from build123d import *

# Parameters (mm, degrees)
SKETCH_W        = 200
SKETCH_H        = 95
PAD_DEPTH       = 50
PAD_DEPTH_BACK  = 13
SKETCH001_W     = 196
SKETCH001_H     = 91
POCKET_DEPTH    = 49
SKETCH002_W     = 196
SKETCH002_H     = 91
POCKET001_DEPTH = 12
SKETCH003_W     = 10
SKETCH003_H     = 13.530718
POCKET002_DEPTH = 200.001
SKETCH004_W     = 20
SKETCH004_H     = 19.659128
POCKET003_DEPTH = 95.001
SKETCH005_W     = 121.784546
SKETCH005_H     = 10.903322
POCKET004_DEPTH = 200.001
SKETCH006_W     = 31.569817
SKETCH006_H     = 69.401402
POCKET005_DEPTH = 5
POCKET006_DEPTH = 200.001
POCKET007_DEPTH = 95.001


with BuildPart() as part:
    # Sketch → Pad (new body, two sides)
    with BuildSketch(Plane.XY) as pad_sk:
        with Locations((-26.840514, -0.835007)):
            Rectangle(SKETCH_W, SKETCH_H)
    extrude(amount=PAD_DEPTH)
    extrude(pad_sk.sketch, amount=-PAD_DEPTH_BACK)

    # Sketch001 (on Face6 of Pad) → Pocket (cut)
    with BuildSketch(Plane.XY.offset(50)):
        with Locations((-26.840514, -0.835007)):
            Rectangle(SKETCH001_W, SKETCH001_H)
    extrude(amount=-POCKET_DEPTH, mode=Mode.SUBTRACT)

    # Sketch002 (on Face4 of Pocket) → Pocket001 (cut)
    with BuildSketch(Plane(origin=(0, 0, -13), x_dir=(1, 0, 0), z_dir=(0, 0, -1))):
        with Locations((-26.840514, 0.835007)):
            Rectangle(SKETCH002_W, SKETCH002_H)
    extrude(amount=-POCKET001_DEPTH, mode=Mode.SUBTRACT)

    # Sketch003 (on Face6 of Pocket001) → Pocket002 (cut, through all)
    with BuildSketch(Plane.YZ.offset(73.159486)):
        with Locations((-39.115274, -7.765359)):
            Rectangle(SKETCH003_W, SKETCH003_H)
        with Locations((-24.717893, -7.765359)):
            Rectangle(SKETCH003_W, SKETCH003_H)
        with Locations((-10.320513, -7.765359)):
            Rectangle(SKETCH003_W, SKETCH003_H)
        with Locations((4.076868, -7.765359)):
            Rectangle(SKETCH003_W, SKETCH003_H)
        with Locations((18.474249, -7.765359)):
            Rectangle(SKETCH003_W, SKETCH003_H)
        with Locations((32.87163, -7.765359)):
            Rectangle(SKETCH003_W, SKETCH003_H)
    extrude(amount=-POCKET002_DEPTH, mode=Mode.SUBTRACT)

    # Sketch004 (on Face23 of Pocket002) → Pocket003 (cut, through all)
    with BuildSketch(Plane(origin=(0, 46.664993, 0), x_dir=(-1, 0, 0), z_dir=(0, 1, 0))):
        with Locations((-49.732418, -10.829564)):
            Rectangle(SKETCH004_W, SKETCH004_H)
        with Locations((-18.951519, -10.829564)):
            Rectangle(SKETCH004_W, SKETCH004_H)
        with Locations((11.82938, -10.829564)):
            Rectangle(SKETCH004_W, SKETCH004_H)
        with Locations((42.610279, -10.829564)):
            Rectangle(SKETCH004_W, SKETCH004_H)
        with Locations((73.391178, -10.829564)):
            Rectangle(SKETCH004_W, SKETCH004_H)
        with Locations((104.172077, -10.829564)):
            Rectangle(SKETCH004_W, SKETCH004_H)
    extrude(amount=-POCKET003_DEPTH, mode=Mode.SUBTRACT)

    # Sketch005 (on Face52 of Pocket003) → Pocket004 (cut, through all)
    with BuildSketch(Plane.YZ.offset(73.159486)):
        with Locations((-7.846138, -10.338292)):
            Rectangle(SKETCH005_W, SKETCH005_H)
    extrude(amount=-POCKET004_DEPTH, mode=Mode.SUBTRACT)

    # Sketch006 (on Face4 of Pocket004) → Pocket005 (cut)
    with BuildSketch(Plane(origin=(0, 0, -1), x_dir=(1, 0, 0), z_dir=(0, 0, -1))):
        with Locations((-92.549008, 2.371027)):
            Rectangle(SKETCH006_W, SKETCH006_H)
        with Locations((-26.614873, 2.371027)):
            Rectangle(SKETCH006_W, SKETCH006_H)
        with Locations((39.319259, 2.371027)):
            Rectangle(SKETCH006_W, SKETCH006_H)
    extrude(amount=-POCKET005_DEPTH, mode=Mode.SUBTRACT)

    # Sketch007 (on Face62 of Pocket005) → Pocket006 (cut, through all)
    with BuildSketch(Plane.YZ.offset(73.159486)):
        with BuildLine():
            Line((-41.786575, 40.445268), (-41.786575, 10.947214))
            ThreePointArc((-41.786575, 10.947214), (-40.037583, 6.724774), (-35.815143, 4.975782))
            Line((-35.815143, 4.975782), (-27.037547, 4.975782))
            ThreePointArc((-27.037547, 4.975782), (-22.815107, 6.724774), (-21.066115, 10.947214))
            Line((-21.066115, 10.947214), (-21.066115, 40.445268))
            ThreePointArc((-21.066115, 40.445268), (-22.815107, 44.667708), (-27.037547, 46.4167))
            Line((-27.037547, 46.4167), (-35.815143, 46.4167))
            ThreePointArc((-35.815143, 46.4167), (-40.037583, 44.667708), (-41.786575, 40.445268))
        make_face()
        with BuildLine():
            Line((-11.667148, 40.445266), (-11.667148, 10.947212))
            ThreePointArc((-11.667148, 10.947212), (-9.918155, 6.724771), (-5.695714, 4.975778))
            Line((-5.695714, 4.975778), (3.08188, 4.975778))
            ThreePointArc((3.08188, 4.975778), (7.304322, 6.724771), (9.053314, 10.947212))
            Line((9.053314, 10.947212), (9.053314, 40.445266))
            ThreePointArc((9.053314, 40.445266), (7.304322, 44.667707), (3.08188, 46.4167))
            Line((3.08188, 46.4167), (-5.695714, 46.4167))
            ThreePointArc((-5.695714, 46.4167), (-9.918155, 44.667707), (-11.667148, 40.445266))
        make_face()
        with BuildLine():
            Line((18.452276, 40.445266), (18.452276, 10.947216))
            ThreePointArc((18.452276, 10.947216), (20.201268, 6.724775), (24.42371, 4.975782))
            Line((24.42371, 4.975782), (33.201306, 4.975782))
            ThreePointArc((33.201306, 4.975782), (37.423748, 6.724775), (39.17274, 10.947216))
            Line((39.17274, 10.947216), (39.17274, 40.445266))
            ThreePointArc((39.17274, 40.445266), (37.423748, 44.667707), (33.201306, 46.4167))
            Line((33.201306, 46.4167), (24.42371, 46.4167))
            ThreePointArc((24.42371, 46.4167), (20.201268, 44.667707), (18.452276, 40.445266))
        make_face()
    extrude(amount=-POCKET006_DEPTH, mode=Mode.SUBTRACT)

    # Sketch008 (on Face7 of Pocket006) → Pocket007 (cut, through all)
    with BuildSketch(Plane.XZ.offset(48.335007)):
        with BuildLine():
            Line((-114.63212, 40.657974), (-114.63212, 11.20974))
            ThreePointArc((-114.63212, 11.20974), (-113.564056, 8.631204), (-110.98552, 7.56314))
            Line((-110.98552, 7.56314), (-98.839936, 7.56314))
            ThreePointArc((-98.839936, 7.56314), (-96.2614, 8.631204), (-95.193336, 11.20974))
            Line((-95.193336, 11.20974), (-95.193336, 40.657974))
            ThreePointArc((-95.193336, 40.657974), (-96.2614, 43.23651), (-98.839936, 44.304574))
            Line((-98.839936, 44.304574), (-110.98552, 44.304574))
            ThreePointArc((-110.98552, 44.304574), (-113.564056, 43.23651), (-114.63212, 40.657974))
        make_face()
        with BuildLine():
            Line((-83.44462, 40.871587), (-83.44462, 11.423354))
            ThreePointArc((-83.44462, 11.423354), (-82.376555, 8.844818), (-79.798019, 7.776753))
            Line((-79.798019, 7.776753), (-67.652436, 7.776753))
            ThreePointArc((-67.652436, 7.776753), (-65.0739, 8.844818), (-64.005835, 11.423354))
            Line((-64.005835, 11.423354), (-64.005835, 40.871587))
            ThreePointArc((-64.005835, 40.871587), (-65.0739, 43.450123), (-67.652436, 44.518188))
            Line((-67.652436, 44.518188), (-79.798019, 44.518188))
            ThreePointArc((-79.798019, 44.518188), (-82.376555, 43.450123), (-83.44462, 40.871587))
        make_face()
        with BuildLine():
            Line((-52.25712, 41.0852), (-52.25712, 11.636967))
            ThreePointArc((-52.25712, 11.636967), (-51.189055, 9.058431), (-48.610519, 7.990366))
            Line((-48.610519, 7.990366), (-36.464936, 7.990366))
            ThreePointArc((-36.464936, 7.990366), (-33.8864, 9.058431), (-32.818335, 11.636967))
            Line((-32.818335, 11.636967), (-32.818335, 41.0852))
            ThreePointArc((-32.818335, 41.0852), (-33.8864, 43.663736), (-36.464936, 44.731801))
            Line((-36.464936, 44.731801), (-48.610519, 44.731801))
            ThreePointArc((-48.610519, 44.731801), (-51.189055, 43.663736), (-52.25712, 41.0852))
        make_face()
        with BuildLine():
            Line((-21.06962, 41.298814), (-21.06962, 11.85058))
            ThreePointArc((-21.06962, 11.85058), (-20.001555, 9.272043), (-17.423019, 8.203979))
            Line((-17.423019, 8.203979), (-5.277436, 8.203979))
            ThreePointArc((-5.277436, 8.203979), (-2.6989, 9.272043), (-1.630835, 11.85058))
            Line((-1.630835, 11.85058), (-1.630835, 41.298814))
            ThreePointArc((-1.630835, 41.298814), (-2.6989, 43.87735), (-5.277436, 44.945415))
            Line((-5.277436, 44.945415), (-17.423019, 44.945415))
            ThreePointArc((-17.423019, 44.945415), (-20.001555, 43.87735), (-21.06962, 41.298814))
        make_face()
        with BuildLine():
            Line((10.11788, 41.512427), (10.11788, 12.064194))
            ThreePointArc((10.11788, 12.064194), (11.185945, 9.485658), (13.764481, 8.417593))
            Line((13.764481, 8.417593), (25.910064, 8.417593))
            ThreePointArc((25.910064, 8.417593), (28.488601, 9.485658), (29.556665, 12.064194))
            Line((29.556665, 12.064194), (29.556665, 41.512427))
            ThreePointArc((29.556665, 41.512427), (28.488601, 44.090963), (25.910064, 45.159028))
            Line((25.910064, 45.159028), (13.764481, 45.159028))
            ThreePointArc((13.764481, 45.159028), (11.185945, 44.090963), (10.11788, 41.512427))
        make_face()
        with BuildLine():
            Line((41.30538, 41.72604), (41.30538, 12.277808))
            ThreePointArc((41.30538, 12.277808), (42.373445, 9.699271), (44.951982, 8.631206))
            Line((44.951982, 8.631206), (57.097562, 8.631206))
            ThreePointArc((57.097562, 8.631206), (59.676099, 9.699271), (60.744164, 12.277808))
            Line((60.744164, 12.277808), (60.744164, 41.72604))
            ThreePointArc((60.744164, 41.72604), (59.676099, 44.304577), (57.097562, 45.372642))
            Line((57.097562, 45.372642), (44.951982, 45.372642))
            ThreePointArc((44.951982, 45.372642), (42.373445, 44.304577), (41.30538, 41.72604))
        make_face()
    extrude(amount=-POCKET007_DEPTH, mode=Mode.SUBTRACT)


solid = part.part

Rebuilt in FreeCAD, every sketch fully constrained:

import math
import FreeCAD as App
import Part
import Sketcher

V = App.Vector
Q = App.Units.Quantity


def add_polygon(sketch, points):
    """Adds a closed chain of lines whose ends are joined by coincident constraints."""
    first, n = sketch.GeometryCount, len(points)
    for a, b in zip(points, points[1:] + points[:1]):
        sketch.addGeometry(Part.LineSegment(App.Vector(*a, 0), App.Vector(*b, 0)), False)
    for i in range(n):
        sketch.addConstraint(Sketcher.Constraint("Coincident", first + i, 2, first + (i + 1) % n, 1))

doc = App.newDocument("Part")
body = doc.addObject("PartDesign::Body", "Body")

# Sketch on XY plane
sketch1 = body.newObject("Sketcher::SketchObject", "Sketch")
sketch1.AttachmentSupport = (doc.getObject("XY_Plane"), [""])
sketch1.MapMode = "FlatFace"
add_polygon(sketch1, [(-126.840514, 46.664993), (-126.840514, -48.335007), (73.159486, -48.335007), (73.159486, 46.664993)])  # lines 0-3
sketch1.addConstraint(Sketcher.Constraint("Vertical", 0))
sketch1.addConstraint(Sketcher.Constraint("Horizontal", 1))
sketch1.addConstraint(Sketcher.Constraint("Vertical", 2))
sketch1.addConstraint(Sketcher.Constraint("Horizontal", 3))
sketch1.addConstraint(Sketcher.Constraint("DistanceX", 1, 1, 1, 2, Q("200 mm")))
sketch1.addConstraint(Sketcher.Constraint("DistanceY", 0, 2, 0, 1, Q("95 mm")))
sketch1.addConstraint(Sketcher.Constraint("DistanceX", 0, 2, -1, 1, Q("126.840514 mm")))
sketch1.addConstraint(Sketcher.Constraint("DistanceY", 0, 2, -1, 1, Q("48.335007 mm")))
pad1 = body.newObject("PartDesign::Pad", "Pad")
pad1.Profile = sketch1
pad1.Type = "TwoLengths"
pad1.Length = 50
pad1.Length2 = 13

# Sketch on XY plane
sketch2 = body.newObject("Sketcher::SketchObject", "Sketch001")
sketch2.AttachmentSupport = (doc.getObject("XY_Plane"), [""])
sketch2.MapMode = "FlatFace"
sketch2.AttachmentOffset = App.Placement(V(0, 0, 50), App.Rotation())
add_polygon(sketch2, [(-124.840514, 44.664993), (-124.840514, -46.335007), (71.159486, -46.335007), (71.159486, 44.664993)])  # lines 0-3
sketch2.addConstraint(Sketcher.Constraint("Vertical", 0))
sketch2.addConstraint(Sketcher.Constraint("Horizontal", 1))
sketch2.addConstraint(Sketcher.Constraint("Vertical", 2))
sketch2.addConstraint(Sketcher.Constraint("Horizontal", 3))
sketch2.addConstraint(Sketcher.Constraint("DistanceX", 1, 1, 1, 2, Q("196 mm")))
sketch2.addConstraint(Sketcher.Constraint("DistanceY", 0, 2, 0, 1, Q("91 mm")))
sketch2.addConstraint(Sketcher.Constraint("DistanceX", 0, 2, -1, 1, Q("124.840514 mm")))
sketch2.addConstraint(Sketcher.Constraint("DistanceY", 0, 2, -1, 1, Q("46.335007 mm")))
pocket1 = body.newObject("PartDesign::Pocket", "Pocket")
pocket1.Profile = sketch2
pocket1.Length = 49

# Sketch on XY plane
sketch3 = body.newObject("Sketcher::SketchObject", "Sketch002")
sketch3.AttachmentSupport = (doc.getObject("XY_Plane"), [""])
sketch3.MapMode = "FlatFace"
sketch3.AttachmentOffset = App.Placement(V(0, 0, -13), App.Rotation())
add_polygon(sketch3, [(-124.840514, -46.335007), (-124.840514, 44.664993), (71.159486, 44.664993), (71.159486, -46.335007)])  # lines 0-3
sketch3.addConstraint(Sketcher.Constraint("Vertical", 0))
sketch3.addConstraint(Sketcher.Constraint("Horizontal", 1))
sketch3.addConstraint(Sketcher.Constraint("Vertical", 2))
sketch3.addConstraint(Sketcher.Constraint("Horizontal", 3))
sketch3.addConstraint(Sketcher.Constraint("DistanceX", 1, 1, 1, 2, Q("196 mm")))
sketch3.addConstraint(Sketcher.Constraint("DistanceY", 0, 1, 0, 2, Q("91 mm")))
sketch3.addConstraint(Sketcher.Constraint("DistanceX", 0, 2, -1, 1, Q("124.840514 mm")))
sketch3.addConstraint(Sketcher.Constraint("DistanceY", -1, 1, 0, 2, Q("44.664993 mm")))
pocket2 = body.newObject("PartDesign::Pocket", "Pocket001")
pocket2.Profile = sketch3
pocket2.Length = 12
pocket2.Reversed = True

# Sketch on YZ plane
sketch4 = body.newObject("Sketcher::SketchObject", "Sketch003")
sketch4.AttachmentSupport = (doc.getObject("YZ_Plane"), [""])
sketch4.MapMode = "FlatFace"
sketch4.AttachmentOffset = App.Placement(V(0, 0, 73.159486), App.Rotation())
add_polygon(sketch4, [(-44.115274, -1), (-44.115274, -14.530718), (-34.115274, -14.530718), (-34.115274, -1)])  # lines 0-3
add_polygon(sketch4, [(-29.717893, -1), (-29.717893, -14.530718), (-19.717893, -14.530718), (-19.717893, -1)])  # lines 4-7
add_polygon(sketch4, [(-15.320513, -1), (-15.320513, -14.530718), (-5.320513, -14.530718), (-5.320513, -1)])  # lines 8-11
add_polygon(sketch4, [(-0.923132, -1), (-0.923132, -14.530718), (9.076868, -14.530718), (9.076868, -1)])  # lines 12-15
add_polygon(sketch4, [(13.474249, -1), (13.474249, -14.530718), (23.474249, -14.530718), (23.474249, -1)])  # lines 16-19
add_polygon(sketch4, [(27.87163, -1), (27.87163, -14.530718), (37.87163, -14.530718), (37.87163, -1)])  # lines 20-23
sketch4.addConstraint(Sketcher.Constraint("Vertical", 0))
sketch4.addConstraint(Sketcher.Constraint("Horizontal", 1))
sketch4.addConstraint(Sketcher.Constraint("Vertical", 2))
sketch4.addConstraint(Sketcher.Constraint("Horizontal", 3))
sketch4.addConstraint(Sketcher.Constraint("Vertical", 4))
sketch4.addConstraint(Sketcher.Constraint("Horizontal", 5))
sketch4.addConstraint(Sketcher.Constraint("Vertical", 6))
sketch4.addConstraint(Sketcher.Constraint("Horizontal", 7))
sketch4.addConstraint(Sketcher.Constraint("Vertical", 8))
sketch4.addConstraint(Sketcher.Constraint("Horizontal", 9))
sketch4.addConstraint(Sketcher.Constraint("Vertical", 10))
sketch4.addConstraint(Sketcher.Constraint("Horizontal", 11))
sketch4.addConstraint(Sketcher.Constraint("Vertical", 12))
sketch4.addConstraint(Sketcher.Constraint("Horizontal", 13))
sketch4.addConstraint(Sketcher.Constraint("Vertical", 14))
sketch4.addConstraint(Sketcher.Constraint("Horizontal", 15))
sketch4.addConstraint(Sketcher.Constraint("Vertical", 16))
sketch4.addConstraint(Sketcher.Constraint("Horizontal", 17))
sketch4.addConstraint(Sketcher.Constraint("Vertical", 18))
sketch4.addConstraint(Sketcher.Constraint("Horizontal", 19))
sketch4.addConstraint(Sketcher.Constraint("Vertical", 20))
sketch4.addConstraint(Sketcher.Constraint("Horizontal", 21))
sketch4.addConstraint(Sketcher.Constraint("Vertical", 22))
sketch4.addConstraint(Sketcher.Constraint("Horizontal", 23))
sketch4.addConstraint(Sketcher.Constraint("Horizontal", 1, 2, 4, 2))
sketch4.addConstraint(Sketcher.Constraint("Horizontal", 3, 2, 6, 2))
sketch4.addConstraint(Sketcher.Constraint("Horizontal", 5, 2, 8, 2))
sketch4.addConstraint(Sketcher.Constraint("Horizontal", 7, 2, 10, 2))
sketch4.addConstraint(Sketcher.Constraint("Horizontal", 9, 2, 12, 2))
sketch4.addConstraint(Sketcher.Constraint("Horizontal", 11, 2, 14, 2))
sketch4.addConstraint(Sketcher.Constraint("Horizontal", 13, 2, 16, 2))
sketch4.addConstraint(Sketcher.Constraint("Horizontal", 15, 2, 18, 2))
sketch4.addConstraint(Sketcher.Constraint("Horizontal", 17, 2, 20, 2))
sketch4.addConstraint(Sketcher.Constraint("Horizontal", 19, 2, 22, 2))
sketch4.addConstraint(Sketcher.Constraint("Equal", 3, 5))
sketch4.addConstraint(Sketcher.Constraint("Equal", 7, 9))
sketch4.addConstraint(Sketcher.Constraint("Equal", 11, 13))
sketch4.addConstraint(Sketcher.Constraint("Equal", 15, 17))
sketch4.addConstraint(Sketcher.Constraint("Equal", 19, 21))
sketch4.addConstraint(Sketcher.Constraint("DistanceX", 1, 1, 1, 2, Q("10 mm")))
sketch4.addConstraint(Sketcher.Constraint("DistanceY", 2, 2, -1, 1, Q("1 mm")))
sketch4.addConstraint(Sketcher.Constraint("DistanceY", 0, 2, 0, 1, Q("13.530718 mm")))
sketch4.addConstraint(Sketcher.Constraint("DistanceX", 12, 2, -1, 1, Q("0.923132 mm")))
sketch4.addConstraint(Sketcher.Constraint("DistanceX", -1, 1, 16, 2, Q("13.474249 mm")))
sketch4.addConstraint(Sketcher.Constraint("DistanceX", -1, 1, 20, 2, Q("27.87163 mm")))
sketch4.addConstraint(Sketcher.Constraint("DistanceX", 1, 2, 4, 2, Q("4.397381 mm")))
sketch4.addConstraint(Sketcher.Constraint("DistanceX", 5, 2, 8, 2, Q("4.39738 mm")))
sketch4.addConstraint(Sketcher.Constraint("DistanceX", 9, 2, 12, 2, Q("4.397381 mm")))
pocket3 = body.newObject("PartDesign::Pocket", "Pocket002")
pocket3.Profile = sketch4
pocket3.Type = "ThroughAll"

# Sketch on XZ plane
sketch5 = body.newObject("Sketcher::SketchObject", "Sketch004")
sketch5.AttachmentSupport = (doc.getObject("XZ_Plane"), [""])
sketch5.MapMode = "FlatFace"
sketch5.AttachmentOffset = App.Placement(V(0, 0, -46.664993), App.Rotation())
add_polygon(sketch5, [(59.732418, -1), (59.732418, -20.659128), (39.732418, -20.659128), (39.732418, -1)])  # lines 0-3
add_polygon(sketch5, [(28.951519, -1), (28.951519, -20.659128), (8.951519, -20.659128), (8.951519, -1)])  # lines 4-7
add_polygon(sketch5, [(-1.82938, -1), (-1.82938, -20.659128), (-21.82938, -20.659128), (-21.82938, -1)])  # lines 8-11
add_polygon(sketch5, [(-32.610279, -1), (-32.610279, -20.659128), (-52.610279, -20.659128), (-52.610279, -1)])  # lines 12-15
add_polygon(sketch5, [(-63.391178, -1), (-63.391178, -20.659128), (-83.391178, -20.659128), (-83.391178, -1)])  # lines 16-19
add_polygon(sketch5, [(-94.172077, -1), (-94.172077, -20.659128), (-114.172077, -20.659128), (-114.172077, -1)])  # lines 20-23
sketch5.addConstraint(Sketcher.Constraint("Vertical", 0))
sketch5.addConstraint(Sketcher.Constraint("Horizontal", 1))
sketch5.addConstraint(Sketcher.Constraint("Vertical", 2))
sketch5.addConstraint(Sketcher.Constraint("Horizontal", 3))
sketch5.addConstraint(Sketcher.Constraint("Vertical", 4))
sketch5.addConstraint(Sketcher.Constraint("Horizontal", 5))
sketch5.addConstraint(Sketcher.Constraint("Vertical", 6))
sketch5.addConstraint(Sketcher.Constraint("Horizontal", 7))
sketch5.addConstraint(Sketcher.Constraint("Vertical", 8))
sketch5.addConstraint(Sketcher.Constraint("Horizontal", 9))
sketch5.addConstraint(Sketcher.Constraint("Vertical", 10))
sketch5.addConstraint(Sketcher.Constraint("Horizontal", 11))
sketch5.addConstraint(Sketcher.Constraint("Vertical", 12))
sketch5.addConstraint(Sketcher.Constraint("Horizontal", 13))
sketch5.addConstraint(Sketcher.Constraint("Vertical", 14))
sketch5.addConstraint(Sketcher.Constraint("Horizontal", 15))
sketch5.addConstraint(Sketcher.Constraint("Vertical", 16))
sketch5.addConstraint(Sketcher.Constraint("Horizontal", 17))
sketch5.addConstraint(Sketcher.Constraint("Vertical", 18))
sketch5.addConstraint(Sketcher.Constraint("Horizontal", 19))
sketch5.addConstraint(Sketcher.Constraint("Vertical", 20))
sketch5.addConstraint(Sketcher.Constraint("Horizontal", 21))
sketch5.addConstraint(Sketcher.Constraint("Vertical", 22))
sketch5.addConstraint(Sketcher.Constraint("Horizontal", 23))
sketch5.addConstraint(Sketcher.Constraint("Horizontal", 1, 2, 4, 2))
sketch5.addConstraint(Sketcher.Constraint("Horizontal", 3, 2, 6, 2))
sketch5.addConstraint(Sketcher.Constraint("Horizontal", 5, 2, 8, 2))
sketch5.addConstraint(Sketcher.Constraint("Horizontal", 7, 2, 10, 2))
sketch5.addConstraint(Sketcher.Constraint("Horizontal", 9, 2, 12, 2))
sketch5.addConstraint(Sketcher.Constraint("Horizontal", 11, 2, 14, 2))
sketch5.addConstraint(Sketcher.Constraint("Horizontal", 13, 2, 16, 2))
sketch5.addConstraint(Sketcher.Constraint("Horizontal", 15, 2, 18, 2))
sketch5.addConstraint(Sketcher.Constraint("Horizontal", 17, 2, 20, 2))
sketch5.addConstraint(Sketcher.Constraint("Horizontal", 19, 2, 22, 2))
sketch5.addConstraint(Sketcher.Constraint("Equal", 3, 5))
sketch5.addConstraint(Sketcher.Constraint("Equal", 7, 9))
sketch5.addConstraint(Sketcher.Constraint("Equal", 11, 13))
sketch5.addConstraint(Sketcher.Constraint("Equal", 15, 17))
sketch5.addConstraint(Sketcher.Constraint("Equal", 19, 21))
sketch5.addConstraint(Sketcher.Constraint("DistanceX", 1, 2, 1, 1, Q("20 mm")))
sketch5.addConstraint(Sketcher.Constraint("DistanceY", 2, 2, -1, 1, Q("1 mm")))
sketch5.addConstraint(Sketcher.Constraint("DistanceX", 4, 2, 1, 2, Q("10.780899 mm")))
sketch5.addConstraint(Sketcher.Constraint("DistanceX", 8, 2, 5, 2, Q("10.780899 mm")))
sketch5.addConstraint(Sketcher.Constraint("DistanceX", 12, 2, 9, 2, Q("10.780899 mm")))
sketch5.addConstraint(Sketcher.Constraint("DistanceX", 16, 2, 13, 2, Q("10.780899 mm")))
sketch5.addConstraint(Sketcher.Constraint("DistanceX", 20, 2, 17, 2, Q("10.780899 mm")))
sketch5.addConstraint(Sketcher.Constraint("DistanceY", 0, 2, 0, 1, Q("19.659128 mm")))
sketch5.addConstraint(Sketcher.Constraint("DistanceX", -1, 1, 0, 2, Q("59.732418 mm")))
pocket4 = body.newObject("PartDesign::Pocket", "Pocket003")
pocket4.Profile = sketch5
pocket4.Type = "ThroughAll"
pocket4.Reversed = True

# Sketch on YZ plane
sketch6 = body.newObject("Sketcher::SketchObject", "Sketch005")
sketch6.AttachmentSupport = (doc.getObject("YZ_Plane"), [""])
sketch6.MapMode = "FlatFace"
sketch6.AttachmentOffset = App.Placement(V(0, 0, 73.159486), App.Rotation())
add_polygon(sketch6, [(-68.738411, -4.886631), (-68.738411, -15.789953), (53.046135, -15.789953), (53.046135, -4.886631)])  # lines 0-3
sketch6.addConstraint(Sketcher.Constraint("Vertical", 0))
sketch6.addConstraint(Sketcher.Constraint("Horizontal", 1))
sketch6.addConstraint(Sketcher.Constraint("Vertical", 2))
sketch6.addConstraint(Sketcher.Constraint("Horizontal", 3))
sketch6.addConstraint(Sketcher.Constraint("DistanceY", 0, 2, 0, 1, Q("10.903322 mm")))
sketch6.addConstraint(Sketcher.Constraint("DistanceX", 1, 1, 1, 2, Q("121.784546 mm")))
sketch6.addConstraint(Sketcher.Constraint("DistanceX", 0, 2, -1, 1, Q("68.738411 mm")))
sketch6.addConstraint(Sketcher.Constraint("DistanceY", 2, 2, -1, 1, Q("4.886631 mm")))
pocket5 = body.newObject("PartDesign::Pocket", "Pocket004")
pocket5.Profile = sketch6
pocket5.Type = "ThroughAll"

# Sketch on XY plane
sketch7 = body.newObject("Sketcher::SketchObject", "Sketch006")
sketch7.AttachmentSupport = (doc.getObject("XY_Plane"), [""])
sketch7.MapMode = "FlatFace"
sketch7.AttachmentOffset = App.Placement(V(0, 0, -1), App.Rotation())
add_polygon(sketch7, [(-108.333917, -37.071728), (-108.333917, 32.329674), (-76.7641, 32.329674), (-76.7641, -37.071728)])  # lines 0-3
add_polygon(sketch7, [(-42.399782, -37.071728), (-42.399782, 32.329674), (-10.829965, 32.329674), (-10.829965, -37.071728)])  # lines 4-7
add_polygon(sketch7, [(23.53435, -37.071728), (23.53435, 32.329674), (55.104168, 32.329674), (55.104168, -37.071728)])  # lines 8-11
sketch7.addConstraint(Sketcher.Constraint("Vertical", 0))
sketch7.addConstraint(Sketcher.Constraint("Horizontal", 1))
sketch7.addConstraint(Sketcher.Constraint("Vertical", 2))
sketch7.addConstraint(Sketcher.Constraint("Horizontal", 3))
sketch7.addConstraint(Sketcher.Constraint("Vertical", 4))
sketch7.addConstraint(Sketcher.Constraint("Horizontal", 5))
sketch7.addConstraint(Sketcher.Constraint("Vertical", 6))
sketch7.addConstraint(Sketcher.Constraint("Horizontal", 7))
sketch7.addConstraint(Sketcher.Constraint("Vertical", 8))
sketch7.addConstraint(Sketcher.Constraint("Horizontal", 9))
sketch7.addConstraint(Sketcher.Constraint("Vertical", 10))
sketch7.addConstraint(Sketcher.Constraint("Horizontal", 11))
sketch7.addConstraint(Sketcher.Constraint("Horizontal", 1, 2, 4, 2))
sketch7.addConstraint(Sketcher.Constraint("Horizontal", 3, 2, 6, 2))
sketch7.addConstraint(Sketcher.Constraint("Horizontal", 5, 2, 8, 2))
sketch7.addConstraint(Sketcher.Constraint("Horizontal", 7, 2, 10, 2))
sketch7.addConstraint(Sketcher.Constraint("Equal", 3, 5))
sketch7.addConstraint(Sketcher.Constraint("Equal", 7, 9))
sketch7.addConstraint(Sketcher.Constraint("DistanceY", 0, 1, 0, 2, Q("69.401402 mm")))
sketch7.addConstraint(Sketcher.Constraint("DistanceX", 1, 2, -1, 1, Q("76.7641 mm")))
sketch7.addConstraint(Sketcher.Constraint("DistanceX", 1, 1, 1, 2, Q("31.569817 mm")))
sketch7.addConstraint(Sketcher.Constraint("DistanceX", 4, 2, -1, 1, Q("42.399782 mm")))
sketch7.addConstraint(Sketcher.Constraint("DistanceX", -1, 1, 8, 2, Q("23.53435 mm")))
sketch7.addConstraint(Sketcher.Constraint("DistanceY", -1, 1, 0, 2, Q("32.329674 mm")))
pocket6 = body.newObject("PartDesign::Pocket", "Pocket005")
pocket6.Profile = sketch7
pocket6.Length = 5
pocket6.Reversed = True

# Sketch on YZ plane
sketch8 = body.newObject("Sketcher::SketchObject", "Sketch007")
sketch8.AttachmentSupport = (doc.getObject("YZ_Plane"), [""])
sketch8.MapMode = "FlatFace"
sketch8.AttachmentOffset = App.Placement(V(0, 0, 73.159486), App.Rotation())
sketch8.addGeometry(Part.LineSegment(V(-41.786575, 40.445268, 0), V(-41.786575, 10.947214, 0)), False)
sketch8.addGeometry(Part.ArcOfCircle(Part.Circle(V(-35.815143, 10.947214, 0), V(0, 0, 1), 5.971432), math.radians(-179.999998), math.radians(-90.000002)), False)
sketch8.addGeometry(Part.LineSegment(V(-35.815143, 4.975782, 0), V(-27.037547, 4.975782, 0)), False)
sketch8.addGeometry(Part.ArcOfCircle(Part.Circle(V(-27.037547, 10.947214, 0), V(0, 0, 1), 5.971432), math.radians(-89.999998), math.radians(-0.000002)), False)
sketch8.addGeometry(Part.LineSegment(V(-21.066115, 10.947214, 0), V(-21.066115, 40.445268, 0)), False)
sketch8.addGeometry(Part.ArcOfCircle(Part.Circle(V(-27.037547, 40.445268, 0), V(0, 0, 1), 5.971432), math.radians(0.000002), math.radians(89.999998)), False)
sketch8.addGeometry(Part.LineSegment(V(-27.037547, 46.4167, 0), V(-35.815143, 46.4167, 0)), False)
sketch8.addGeometry(Part.ArcOfCircle(Part.Circle(V(-35.815143, 40.445268, 0), V(0, 0, 1), 5.971432), math.radians(90.000002), math.radians(179.999998)), False)
sketch8.addGeometry(Part.LineSegment(V(-11.667148, 40.445266, 0), V(-11.667148, 10.947212, 0)), False)
sketch8.addGeometry(Part.ArcOfCircle(Part.Circle(V(-5.695712, 10.947214, 0), V(0, 0, 1), 5.971436), math.radians(-179.999984), math.radians(-90.000016)), False)
sketch8.addGeometry(Part.LineSegment(V(-5.695714, 4.975778, 0), V(3.08188, 4.975778, 0)), False)
sketch8.addGeometry(Part.ArcOfCircle(Part.Circle(V(3.08188, 10.947212, 0), V(0, 0, 1), 5.971434), math.radians(-90.000001), math.radians(0.000001)), False)
sketch8.addGeometry(Part.LineSegment(V(9.053314, 10.947212, 0), V(9.053314, 40.445266, 0)), False)
sketch8.addGeometry(Part.ArcOfCircle(Part.Circle(V(3.08188, 40.445266, 0), V(0, 0, 1), 5.971434), math.radians(-0.000001), math.radians(90.000001)), False)
sketch8.addGeometry(Part.LineSegment(V(3.08188, 46.4167, 0), V(-5.695714, 46.4167, 0)), False)
sketch8.addGeometry(Part.ArcOfCircle(Part.Circle(V(-5.695712, 40.445264, 0), V(0, 0, 1), 5.971436), math.radians(90.000016), math.radians(179.999984)), False)
sketch8.addGeometry(Part.LineSegment(V(18.452276, 40.445266, 0), V(18.452276, 10.947216, 0)), False)
sketch8.addGeometry(Part.ArcOfCircle(Part.Circle(V(24.42371, 10.947216, 0), V(0, 0, 1), 5.971434), math.radians(179.999999), math.radians(270.000001)), False)
sketch8.addGeometry(Part.LineSegment(V(24.42371, 4.975782, 0), V(33.201306, 4.975782, 0)), False)
sketch8.addGeometry(Part.ArcOfCircle(Part.Circle(V(33.201306, 10.947216, 0), V(0, 0, 1), 5.971434), math.radians(-90.000001), math.radians(0.000001)), False)
sketch8.addGeometry(Part.LineSegment(V(39.17274, 10.947216, 0), V(39.17274, 40.445266, 0)), False)
sketch8.addGeometry(Part.ArcOfCircle(Part.Circle(V(33.201306, 40.445266, 0), V(0, 0, 1), 5.971434), math.radians(-0.000001), math.radians(90.000001)), False)
sketch8.addGeometry(Part.LineSegment(V(33.201306, 46.4167, 0), V(24.42371, 46.4167, 0)), False)
sketch8.addGeometry(Part.ArcOfCircle(Part.Circle(V(24.42371, 40.445266, 0), V(0, 0, 1), 5.971434), math.radians(89.999999), math.radians(180.000001)), False)
sketch8.addConstraint(Sketcher.Constraint("Tangent", 0, 2, 1, 1))
sketch8.addConstraint(Sketcher.Constraint("Tangent", 1, 2, 2, 1))
sketch8.addConstraint(Sketcher.Constraint("Tangent", 2, 2, 3, 1))
sketch8.addConstraint(Sketcher.Constraint("Tangent", 3, 2, 4, 1))
sketch8.addConstraint(Sketcher.Constraint("Tangent", 4, 2, 5, 1))
sketch8.addConstraint(Sketcher.Constraint("Tangent", 5, 2, 6, 1))
sketch8.addConstraint(Sketcher.Constraint("Tangent", 6, 2, 7, 1))
sketch8.addConstraint(Sketcher.Constraint("Tangent", 7, 2, 0, 1))
sketch8.addConstraint(Sketcher.Constraint("Tangent", 8, 2, 9, 1))
sketch8.addConstraint(Sketcher.Constraint("Tangent", 9, 2, 10, 1))
sketch8.addConstraint(Sketcher.Constraint("Tangent", 10, 2, 11, 1))
sketch8.addConstraint(Sketcher.Constraint("Tangent", 11, 2, 12, 1))
sketch8.addConstraint(Sketcher.Constraint("Tangent", 12, 2, 13, 1))
sketch8.addConstraint(Sketcher.Constraint("Tangent", 13, 2, 14, 1))
sketch8.addConstraint(Sketcher.Constraint("Tangent", 14, 2, 15, 1))
sketch8.addConstraint(Sketcher.Constraint("Tangent", 15, 2, 8, 1))
sketch8.addConstraint(Sketcher.Constraint("Tangent", 16, 2, 17, 1))
sketch8.addConstraint(Sketcher.Constraint("Tangent", 17, 2, 18, 1))
sketch8.addConstraint(Sketcher.Constraint("Tangent", 18, 2, 19, 1))
sketch8.addConstraint(Sketcher.Constraint("Tangent", 19, 2, 20, 1))
sketch8.addConstraint(Sketcher.Constraint("Tangent", 20, 2, 21, 1))
sketch8.addConstraint(Sketcher.Constraint("Tangent", 21, 2, 22, 1))
sketch8.addConstraint(Sketcher.Constraint("Tangent", 22, 2, 23, 1))
sketch8.addConstraint(Sketcher.Constraint("Tangent", 23, 2, 16, 1))
sketch8.addConstraint(Sketcher.Constraint("Vertical", 0))
sketch8.addConstraint(Sketcher.Constraint("Horizontal", 2))
sketch8.addConstraint(Sketcher.Constraint("Vertical", 4))
sketch8.addConstraint(Sketcher.Constraint("Horizontal", 6))
sketch8.addConstraint(Sketcher.Constraint("Vertical", 8))
sketch8.addConstraint(Sketcher.Constraint("Horizontal", 10))
sketch8.addConstraint(Sketcher.Constraint("Vertical", 12))
sketch8.addConstraint(Sketcher.Constraint("Horizontal", 14))
sketch8.addConstraint(Sketcher.Constraint("Vertical", 16))
sketch8.addConstraint(Sketcher.Constraint("Horizontal", 18))
sketch8.addConstraint(Sketcher.Constraint("Vertical", 20))
sketch8.addConstraint(Sketcher.Constraint("Horizontal", 22))
sketch8.addConstraint(Sketcher.Constraint("Equal", 1, 3))
sketch8.addConstraint(Sketcher.Constraint("Equal", 3, 5))
sketch8.addConstraint(Sketcher.Constraint("Equal", 5, 7))
sketch8.addConstraint(Sketcher.Constraint("Equal", 9, 11))
sketch8.addConstraint(Sketcher.Constraint("Equal", 11, 13))
sketch8.addConstraint(Sketcher.Constraint("Equal", 13, 15))
sketch8.addConstraint(Sketcher.Constraint("Equal", 15, 17))
sketch8.addConstraint(Sketcher.Constraint("Equal", 17, 19))
sketch8.addConstraint(Sketcher.Constraint("Equal", 19, 21))
sketch8.addConstraint(Sketcher.Constraint("Equal", 21, 23))
sketch8.addConstraint(Sketcher.Constraint("Horizontal", 3, 3, 9, 3))
sketch8.addConstraint(Sketcher.Constraint("Horizontal", 7, 3, 13, 3))
sketch8.addConstraint(Sketcher.Constraint("Horizontal", 3, 3, 17, 3))
sketch8.addConstraint(Sketcher.Constraint("Horizontal", 15, 3, 21, 3))
sketch8.addConstraint(Sketcher.Constraint("Horizontal", 6, 2, 13, 2))
sketch8.addConstraint(Sketcher.Constraint("Equal", 6, 10))
sketch8.addConstraint(Sketcher.Constraint("Equal", 6, 18))
sketch8.addConstraint(Sketcher.Constraint("Radius", 1, Q("5.971432 mm")))
sketch8.addConstraint(Sketcher.Constraint("DistanceY", 16, 2, 16, 1, Q("29.49805 mm")))
sketch8.addConstraint(Sketcher.Constraint("DistanceY", -1, 1, 5, 2, Q("46.4167 mm")))
sketch8.addConstraint(Sketcher.Constraint("DistanceX", 3, 3, 8, 2, Q("15.370399 mm")))
sketch8.addConstraint(Sketcher.Constraint("DistanceX", 2, 1, 2, 2, Q("8.777596 mm")))
sketch8.addConstraint(Sketcher.Constraint("DistanceX", -1, 1, 11, 3, Q("3.08188 mm")))
sketch8.addConstraint(Sketcher.Constraint("DistanceX", -1, 1, 17, 3, Q("24.42371 mm")))
pocket7 = body.newObject("PartDesign::Pocket", "Pocket006")
pocket7.Profile = sketch8
pocket7.Type = "ThroughAll"

# Sketch on XZ plane
sketch9 = body.newObject("Sketcher::SketchObject", "Sketch008")
sketch9.AttachmentSupport = (doc.getObject("XZ_Plane"), [""])
sketch9.MapMode = "FlatFace"
sketch9.AttachmentOffset = App.Placement(V(0, 0, 48.335007), App.Rotation())
sketch9.addGeometry(Part.LineSegment(V(-114.63212, 40.657974, 0), V(-114.63212, 11.20974, 0)), False)
sketch9.addGeometry(Part.ArcOfCircle(Part.Circle(V(-110.985521, 11.209739, 0), V(0, 0, 1), 3.646599), math.radians(179.999978), math.radians(270.000022)), False)
sketch9.addGeometry(Part.LineSegment(V(-110.98552, 7.56314, 0), V(-98.839936, 7.56314, 0)), False)
sketch9.addGeometry(Part.ArcOfCircle(Part.Circle(V(-98.839935, 11.209739, 0), V(0, 0, 1), 3.646599), math.radians(-90.000022), math.radians(0.000022)), False)
sketch9.addGeometry(Part.LineSegment(V(-95.193336, 11.20974, 0), V(-95.193336, 40.657974, 0)), False)
sketch9.addGeometry(Part.ArcOfCircle(Part.Circle(V(-98.839935, 40.657975, 0), V(0, 0, 1), 3.646599), math.radians(-0.000022), math.radians(90.000022)), False)
sketch9.addGeometry(Part.LineSegment(V(-98.839936, 44.304574, 0), V(-110.98552, 44.304574, 0)), False)
sketch9.addGeometry(Part.ArcOfCircle(Part.Circle(V(-110.985521, 40.657975, 0), V(0, 0, 1), 3.646599), math.radians(89.999978), math.radians(180.000022)), False)
sketch9.addGeometry(Part.LineSegment(V(-83.44462, 40.871587, 0), V(-83.44462, 11.423354, 0)), False)
sketch9.addGeometry(Part.ArcOfCircle(Part.Circle(V(-79.798018, 11.423355, 0), V(0, 0, 1), 3.646602), math.radians(-179.999984), math.radians(-90.000016)), False)
sketch9.addGeometry(Part.LineSegment(V(-79.798019, 7.776753, 0), V(-67.652436, 7.776753, 0)), False)
sketch9.addGeometry(Part.ArcOfCircle(Part.Circle(V(-67.652437, 11.423355, 0), V(0, 0, 1), 3.646602), math.radians(-89.999984), math.radians(-0.000016)), False)
sketch9.addGeometry(Part.LineSegment(V(-64.005835, 11.423354, 0), V(-64.005835, 40.871587, 0)), False)
sketch9.addGeometry(Part.ArcOfCircle(Part.Circle(V(-67.652437, 40.871586, 0), V(0, 0, 1), 3.646602), math.radians(0.000016), math.radians(89.999984)), False)
sketch9.addGeometry(Part.LineSegment(V(-67.652436, 44.518188, 0), V(-79.798019, 44.518188, 0)), False)
sketch9.addGeometry(Part.ArcOfCircle(Part.Circle(V(-79.798018, 40.871586, 0), V(0, 0, 1), 3.646602), math.radians(90.000016), math.radians(179.999984)), False)
sketch9.addGeometry(Part.LineSegment(V(-52.25712, 41.0852, 0), V(-52.25712, 11.636967, 0)), False)
sketch9.addGeometry(Part.ArcOfCircle(Part.Circle(V(-48.610518, 11.636968, 0), V(0, 0, 1), 3.646602), math.radians(-179.999984), math.radians(-90.000016)), False)
sketch9.addGeometry(Part.LineSegment(V(-48.610519, 7.990366, 0), V(-36.464936, 7.990366, 0)), False)
sketch9.addGeometry(Part.ArcOfCircle(Part.Circle(V(-36.464937, 11.636968, 0), V(0, 0, 1), 3.646602), math.radians(-89.999984), math.radians(-0.000016)), False)
sketch9.addGeometry(Part.LineSegment(V(-32.818335, 11.636967, 0), V(-32.818335, 41.0852, 0)), False)
sketch9.addGeometry(Part.ArcOfCircle(Part.Circle(V(-36.464937, 41.085199, 0), V(0, 0, 1), 3.646602), math.radians(0.000016), math.radians(89.999984)), False)
sketch9.addGeometry(Part.LineSegment(V(-36.464936, 44.731801, 0), V(-48.610519, 44.731801, 0)), False)
sketch9.addGeometry(Part.ArcOfCircle(Part.Circle(V(-48.610518, 41.085199, 0), V(0, 0, 1), 3.646602), math.radians(90.000016), math.radians(179.999984)), False)
sketch9.addGeometry(Part.LineSegment(V(-21.06962, 41.298814, 0), V(-21.06962, 11.85058, 0)), False)
sketch9.addGeometry(Part.ArcOfCircle(Part.Circle(V(-17.42302, 11.850579, 0), V(0, 0, 1), 3.6466), math.radians(179.999989), math.radians(270.000011)), False)
sketch9.addGeometry(Part.LineSegment(V(-17.423019, 8.203979, 0), V(-5.277436, 8.203979, 0)), False)
sketch9.addGeometry(Part.ArcOfCircle(Part.Circle(V(-5.277435, 11.850579, 0), V(0, 0, 1), 3.6466), math.radians(-90.000011), math.radians(0.000011)), False)
sketch9.addGeometry(Part.LineSegment(V(-1.630835, 11.85058, 0), V(-1.630835, 41.298814, 0)), False)
sketch9.addGeometry(Part.ArcOfCircle(Part.Circle(V(-5.277437, 41.298813, 0), V(0, 0, 1), 3.646602), math.radians(0.000016), math.radians(89.999984)), False)
sketch9.addGeometry(Part.LineSegment(V(-5.277436, 44.945415, 0), V(-17.423019, 44.945415, 0)), False)
sketch9.addGeometry(Part.ArcOfCircle(Part.Circle(V(-17.423018, 41.298813, 0), V(0, 0, 1), 3.646602), math.radians(90.000016), math.radians(179.999984)), False)
sketch9.addGeometry(Part.LineSegment(V(10.11788, 41.512427, 0), V(10.11788, 12.064194, 0)), False)
sketch9.addGeometry(Part.ArcOfCircle(Part.Circle(V(13.764482, 12.064195, 0), V(0, 0, 1), 3.646602), math.radians(-179.999984), math.radians(-90.000016)), False)
sketch9.addGeometry(Part.LineSegment(V(13.764481, 8.417593, 0), V(25.910064, 8.417593, 0)), False)
sketch9.addGeometry(Part.ArcOfCircle(Part.Circle(V(25.910065, 12.064193, 0), V(0, 0, 1), 3.6466), math.radians(-90.000011), math.radians(0.000011)), False)
sketch9.addGeometry(Part.LineSegment(V(29.556665, 12.064194, 0), V(29.556665, 41.512427, 0)), False)
sketch9.addGeometry(Part.ArcOfCircle(Part.Circle(V(25.910065, 41.512428, 0), V(0, 0, 1), 3.6466), math.radians(-0.000011), math.radians(90.000011)), False)
sketch9.addGeometry(Part.LineSegment(V(25.910064, 45.159028, 0), V(13.764481, 45.159028, 0)), False)
sketch9.addGeometry(Part.ArcOfCircle(Part.Circle(V(13.764482, 41.512426, 0), V(0, 0, 1), 3.646602), math.radians(90.000016), math.radians(179.999984)), False)
sketch9.addGeometry(Part.LineSegment(V(41.30538, 41.72604, 0), V(41.30538, 12.277808, 0)), False)
sketch9.addGeometry(Part.ArcOfCircle(Part.Circle(V(44.951982, 12.277808, 0), V(0, 0, 1), 3.646602), math.radians(-180), math.radians(-90)), False)
sketch9.addGeometry(Part.LineSegment(V(44.951982, 8.631206, 0), V(57.097562, 8.631206, 0)), False)
sketch9.addGeometry(Part.ArcOfCircle(Part.Circle(V(57.097562, 12.277808, 0), V(0, 0, 1), 3.646602), math.radians(-90), math.radians(0)), False)
sketch9.addGeometry(Part.LineSegment(V(60.744164, 12.277808, 0), V(60.744164, 41.72604, 0)), False)
sketch9.addGeometry(Part.ArcOfCircle(Part.Circle(V(57.097562, 41.72604, 0), V(0, 0, 1), 3.646602), math.radians(0), math.radians(90)), False)
sketch9.addGeometry(Part.LineSegment(V(57.097562, 45.372642, 0), V(44.951982, 45.372642, 0)), False)
sketch9.addGeometry(Part.ArcOfCircle(Part.Circle(V(44.951982, 41.72604, 0), V(0, 0, 1), 3.646602), math.radians(90), math.radians(180)), False)
sketch9.addConstraint(Sketcher.Constraint("Tangent", 0, 2, 1, 1))
sketch9.addConstraint(Sketcher.Constraint("Tangent", 1, 2, 2, 1))
sketch9.addConstraint(Sketcher.Constraint("Tangent", 2, 2, 3, 1))
sketch9.addConstraint(Sketcher.Constraint("Tangent", 3, 2, 4, 1))
sketch9.addConstraint(Sketcher.Constraint("Tangent", 4, 2, 5, 1))
sketch9.addConstraint(Sketcher.Constraint("Tangent", 5, 2, 6, 1))
sketch9.addConstraint(Sketcher.Constraint("Tangent", 6, 2, 7, 1))
sketch9.addConstraint(Sketcher.Constraint("Tangent", 7, 2, 0, 1))
sketch9.addConstraint(Sketcher.Constraint("Tangent", 8, 2, 9, 1))
sketch9.addConstraint(Sketcher.Constraint("Tangent", 9, 2, 10, 1))
sketch9.addConstraint(Sketcher.Constraint("Tangent", 10, 2, 11, 1))
sketch9.addConstraint(Sketcher.Constraint("Tangent", 11, 2, 12, 1))
sketch9.addConstraint(Sketcher.Constraint("Tangent", 12, 2, 13, 1))
sketch9.addConstraint(Sketcher.Constraint("Tangent", 13, 2, 14, 1))
sketch9.addConstraint(Sketcher.Constraint("Tangent", 14, 2, 15, 1))
sketch9.addConstraint(Sketcher.Constraint("Tangent", 15, 2, 8, 1))
sketch9.addConstraint(Sketcher.Constraint("Tangent", 16, 2, 17, 1))
sketch9.addConstraint(Sketcher.Constraint("Tangent", 17, 2, 18, 1))
sketch9.addConstraint(Sketcher.Constraint("Tangent", 18, 2, 19, 1))
sketch9.addConstraint(Sketcher.Constraint("Tangent", 19, 2, 20, 1))
sketch9.addConstraint(Sketcher.Constraint("Tangent", 20, 2, 21, 1))
sketch9.addConstraint(Sketcher.Constraint("Tangent", 21, 2, 22, 1))
sketch9.addConstraint(Sketcher.Constraint("Tangent", 22, 2, 23, 1))
sketch9.addConstraint(Sketcher.Constraint("Tangent", 23, 2, 16, 1))
sketch9.addConstraint(Sketcher.Constraint("Tangent", 24, 2, 25, 1))
sketch9.addConstraint(Sketcher.Constraint("Tangent", 25, 2, 26, 1))
sketch9.addConstraint(Sketcher.Constraint("Tangent", 26, 2, 27, 1))
sketch9.addConstraint(Sketcher.Constraint("Tangent", 27, 2, 28, 1))
sketch9.addConstraint(Sketcher.Constraint("Tangent", 28, 2, 29, 1))
sketch9.addConstraint(Sketcher.Constraint("Tangent", 29, 2, 30, 1))
sketch9.addConstraint(Sketcher.Constraint("Tangent", 30, 2, 31, 1))
sketch9.addConstraint(Sketcher.Constraint("Tangent", 31, 2, 24, 1))
sketch9.addConstraint(Sketcher.Constraint("Tangent", 32, 2, 33, 1))
sketch9.addConstraint(Sketcher.Constraint("Tangent", 33, 2, 34, 1))
sketch9.addConstraint(Sketcher.Constraint("Tangent", 34, 2, 35, 1))
sketch9.addConstraint(Sketcher.Constraint("Tangent", 35, 2, 36, 1))
sketch9.addConstraint(Sketcher.Constraint("Tangent", 36, 2, 37, 1))
sketch9.addConstraint(Sketcher.Constraint("Tangent", 37, 2, 38, 1))
sketch9.addConstraint(Sketcher.Constraint("Tangent", 38, 2, 39, 1))
sketch9.addConstraint(Sketcher.Constraint("Tangent", 39, 2, 32, 1))
sketch9.addConstraint(Sketcher.Constraint("Tangent", 40, 2, 41, 1))
sketch9.addConstraint(Sketcher.Constraint("Tangent", 41, 2, 42, 1))
sketch9.addConstraint(Sketcher.Constraint("Tangent", 42, 2, 43, 1))
sketch9.addConstraint(Sketcher.Constraint("Tangent", 43, 2, 44, 1))
sketch9.addConstraint(Sketcher.Constraint("Tangent", 44, 2, 45, 1))
sketch9.addConstraint(Sketcher.Constraint("Tangent", 45, 2, 46, 1))
sketch9.addConstraint(Sketcher.Constraint("Tangent", 46, 2, 47, 1))
sketch9.addConstraint(Sketcher.Constraint("Tangent", 47, 2, 40, 1))
sketch9.addConstraint(Sketcher.Constraint("Vertical", 0))
sketch9.addConstraint(Sketcher.Constraint("Horizontal", 2))
sketch9.addConstraint(Sketcher.Constraint("Vertical", 4))
sketch9.addConstraint(Sketcher.Constraint("Horizontal", 6))
sketch9.addConstraint(Sketcher.Constraint("Vertical", 8))
sketch9.addConstraint(Sketcher.Constraint("Horizontal", 10))
sketch9.addConstraint(Sketcher.Constraint("Vertical", 12))
sketch9.addConstraint(Sketcher.Constraint("Horizontal", 14))
sketch9.addConstraint(Sketcher.Constraint("Vertical", 16))
sketch9.addConstraint(Sketcher.Constraint("Horizontal", 18))
sketch9.addConstraint(Sketcher.Constraint("Vertical", 20))
sketch9.addConstraint(Sketcher.Constraint("Horizontal", 22))
sketch9.addConstraint(Sketcher.Constraint("Vertical", 24))
sketch9.addConstraint(Sketcher.Constraint("Horizontal", 26))
sketch9.addConstraint(Sketcher.Constraint("Vertical", 28))
sketch9.addConstraint(Sketcher.Constraint("Horizontal", 30))
sketch9.addConstraint(Sketcher.Constraint("Vertical", 32))
sketch9.addConstraint(Sketcher.Constraint("Horizontal", 34))
sketch9.addConstraint(Sketcher.Constraint("Vertical", 36))
sketch9.addConstraint(Sketcher.Constraint("Horizontal", 38))
sketch9.addConstraint(Sketcher.Constraint("Vertical", 40))
sketch9.addConstraint(Sketcher.Constraint("Horizontal", 42))
sketch9.addConstraint(Sketcher.Constraint("Vertical", 44))
sketch9.addConstraint(Sketcher.Constraint("Horizontal", 46))
sketch9.addConstraint(Sketcher.Constraint("Equal", 1, 3))
sketch9.addConstraint(Sketcher.Constraint("Equal", 3, 5))
sketch9.addConstraint(Sketcher.Constraint("Equal", 5, 7))
sketch9.addConstraint(Sketcher.Constraint("Equal", 9, 11))
sketch9.addConstraint(Sketcher.Constraint("Equal", 11, 13))
sketch9.addConstraint(Sketcher.Constraint("Equal", 13, 15))
sketch9.addConstraint(Sketcher.Constraint("Equal", 15, 17))
sketch9.addConstraint(Sketcher.Constraint("Equal", 17, 19))
sketch9.addConstraint(Sketcher.Constraint("Equal", 19, 21))
sketch9.addConstraint(Sketcher.Constraint("Equal", 21, 23))
sketch9.addConstraint(Sketcher.Constraint("Equal", 23, 25))
sketch9.addConstraint(Sketcher.Constraint("Equal", 25, 27))
sketch9.addConstraint(Sketcher.Constraint("Equal", 27, 29))
sketch9.addConstraint(Sketcher.Constraint("Equal", 29, 31))
sketch9.addConstraint(Sketcher.Constraint("Equal", 31, 33))
sketch9.addConstraint(Sketcher.Constraint("Equal", 33, 35))
sketch9.addConstraint(Sketcher.Constraint("Equal", 35, 37))
sketch9.addConstraint(Sketcher.Constraint("Equal", 37, 39))
sketch9.addConstraint(Sketcher.Constraint("Equal", 39, 41))
sketch9.addConstraint(Sketcher.Constraint("Equal", 41, 43))
sketch9.addConstraint(Sketcher.Constraint("Equal", 43, 45))
sketch9.addConstraint(Sketcher.Constraint("Equal", 45, 47))
sketch9.addConstraint(Sketcher.Constraint("Equal", 6, 10))
sketch9.addConstraint(Sketcher.Constraint("Equal", 14, 18))
sketch9.addConstraint(Sketcher.Constraint("Equal", 22, 26))
sketch9.addConstraint(Sketcher.Constraint("Equal", 30, 34))
sketch9.addConstraint(Sketcher.Constraint("Equal", 4, 8))
sketch9.addConstraint(Sketcher.Constraint("Equal", 12, 16))
sketch9.addConstraint(Sketcher.Constraint("Equal", 20, 24))
sketch9.addConstraint(Sketcher.Constraint("Equal", 28, 32))
sketch9.addConstraint(Sketcher.Constraint("Equal", 36, 40))
sketch9.addConstraint(Sketcher.Constraint("Radius", 1, Q("3.646599 mm")))
sketch9.addConstraint(Sketcher.Constraint("Radius", 25, Q("3.6466 mm")))
sketch9.addConstraint(Sketcher.Constraint("DistanceX", 42, 1, 42, 2, Q("12.14558 mm")))
sketch9.addConstraint(Sketcher.Constraint("DistanceY", 40, 2, 40, 1, Q("29.448232 mm")))
sketch9.addConstraint(Sketcher.Constraint("DistanceY", -1, 1, 21, 3, Q("41.085199 mm")))
sketch9.addConstraint(Sketcher.Constraint("DistanceX", 2, 1, 2, 2, Q("12.145584 mm")))
sketch9.addConstraint(Sketcher.Constraint("DistanceX", 1, 3, -1, 1, Q("110.985521 mm")))
sketch9.addConstraint(Sketcher.Constraint("DistanceY", -1, 1, 1, 3, Q("11.209739 mm")))
sketch9.addConstraint(Sketcher.Constraint("DistanceX", 25, 3, -1, 1, Q("17.42302 mm")))
sketch9.addConstraint(Sketcher.Constraint("DistanceY", -1, 1, 25, 3, Q("11.850579 mm")))
sketch9.addConstraint(Sketcher.Constraint("DistanceY", -1, 1, 41, 3, Q("12.277808 mm")))
sketch9.addConstraint(Sketcher.Constraint("DistanceX", -1, 1, 43, 3, Q("57.097562 mm")))
sketch9.addConstraint(Sketcher.Constraint("DistanceX", 8, 2, -1, 1, Q("83.44462 mm")))
sketch9.addConstraint(Sketcher.Constraint("DistanceY", -1, 1, 14, 2, Q("44.518188 mm")))
sketch9.addConstraint(Sketcher.Constraint("DistanceX", 16, 2, -1, 1, Q("52.25712 mm")))
sketch9.addConstraint(Sketcher.Constraint("DistanceX", -1, 1, 32, 2, Q("10.11788 mm")))
sketch9.addConstraint(Sketcher.Constraint("DistanceY", -1, 1, 33, 3, Q("12.064195 mm")))
pocket8 = body.newObject("PartDesign::Pocket", "Pocket007")
pocket8.Profile = sketch9
pocket8.Type = "ThroughAll"

doc.recompute()
